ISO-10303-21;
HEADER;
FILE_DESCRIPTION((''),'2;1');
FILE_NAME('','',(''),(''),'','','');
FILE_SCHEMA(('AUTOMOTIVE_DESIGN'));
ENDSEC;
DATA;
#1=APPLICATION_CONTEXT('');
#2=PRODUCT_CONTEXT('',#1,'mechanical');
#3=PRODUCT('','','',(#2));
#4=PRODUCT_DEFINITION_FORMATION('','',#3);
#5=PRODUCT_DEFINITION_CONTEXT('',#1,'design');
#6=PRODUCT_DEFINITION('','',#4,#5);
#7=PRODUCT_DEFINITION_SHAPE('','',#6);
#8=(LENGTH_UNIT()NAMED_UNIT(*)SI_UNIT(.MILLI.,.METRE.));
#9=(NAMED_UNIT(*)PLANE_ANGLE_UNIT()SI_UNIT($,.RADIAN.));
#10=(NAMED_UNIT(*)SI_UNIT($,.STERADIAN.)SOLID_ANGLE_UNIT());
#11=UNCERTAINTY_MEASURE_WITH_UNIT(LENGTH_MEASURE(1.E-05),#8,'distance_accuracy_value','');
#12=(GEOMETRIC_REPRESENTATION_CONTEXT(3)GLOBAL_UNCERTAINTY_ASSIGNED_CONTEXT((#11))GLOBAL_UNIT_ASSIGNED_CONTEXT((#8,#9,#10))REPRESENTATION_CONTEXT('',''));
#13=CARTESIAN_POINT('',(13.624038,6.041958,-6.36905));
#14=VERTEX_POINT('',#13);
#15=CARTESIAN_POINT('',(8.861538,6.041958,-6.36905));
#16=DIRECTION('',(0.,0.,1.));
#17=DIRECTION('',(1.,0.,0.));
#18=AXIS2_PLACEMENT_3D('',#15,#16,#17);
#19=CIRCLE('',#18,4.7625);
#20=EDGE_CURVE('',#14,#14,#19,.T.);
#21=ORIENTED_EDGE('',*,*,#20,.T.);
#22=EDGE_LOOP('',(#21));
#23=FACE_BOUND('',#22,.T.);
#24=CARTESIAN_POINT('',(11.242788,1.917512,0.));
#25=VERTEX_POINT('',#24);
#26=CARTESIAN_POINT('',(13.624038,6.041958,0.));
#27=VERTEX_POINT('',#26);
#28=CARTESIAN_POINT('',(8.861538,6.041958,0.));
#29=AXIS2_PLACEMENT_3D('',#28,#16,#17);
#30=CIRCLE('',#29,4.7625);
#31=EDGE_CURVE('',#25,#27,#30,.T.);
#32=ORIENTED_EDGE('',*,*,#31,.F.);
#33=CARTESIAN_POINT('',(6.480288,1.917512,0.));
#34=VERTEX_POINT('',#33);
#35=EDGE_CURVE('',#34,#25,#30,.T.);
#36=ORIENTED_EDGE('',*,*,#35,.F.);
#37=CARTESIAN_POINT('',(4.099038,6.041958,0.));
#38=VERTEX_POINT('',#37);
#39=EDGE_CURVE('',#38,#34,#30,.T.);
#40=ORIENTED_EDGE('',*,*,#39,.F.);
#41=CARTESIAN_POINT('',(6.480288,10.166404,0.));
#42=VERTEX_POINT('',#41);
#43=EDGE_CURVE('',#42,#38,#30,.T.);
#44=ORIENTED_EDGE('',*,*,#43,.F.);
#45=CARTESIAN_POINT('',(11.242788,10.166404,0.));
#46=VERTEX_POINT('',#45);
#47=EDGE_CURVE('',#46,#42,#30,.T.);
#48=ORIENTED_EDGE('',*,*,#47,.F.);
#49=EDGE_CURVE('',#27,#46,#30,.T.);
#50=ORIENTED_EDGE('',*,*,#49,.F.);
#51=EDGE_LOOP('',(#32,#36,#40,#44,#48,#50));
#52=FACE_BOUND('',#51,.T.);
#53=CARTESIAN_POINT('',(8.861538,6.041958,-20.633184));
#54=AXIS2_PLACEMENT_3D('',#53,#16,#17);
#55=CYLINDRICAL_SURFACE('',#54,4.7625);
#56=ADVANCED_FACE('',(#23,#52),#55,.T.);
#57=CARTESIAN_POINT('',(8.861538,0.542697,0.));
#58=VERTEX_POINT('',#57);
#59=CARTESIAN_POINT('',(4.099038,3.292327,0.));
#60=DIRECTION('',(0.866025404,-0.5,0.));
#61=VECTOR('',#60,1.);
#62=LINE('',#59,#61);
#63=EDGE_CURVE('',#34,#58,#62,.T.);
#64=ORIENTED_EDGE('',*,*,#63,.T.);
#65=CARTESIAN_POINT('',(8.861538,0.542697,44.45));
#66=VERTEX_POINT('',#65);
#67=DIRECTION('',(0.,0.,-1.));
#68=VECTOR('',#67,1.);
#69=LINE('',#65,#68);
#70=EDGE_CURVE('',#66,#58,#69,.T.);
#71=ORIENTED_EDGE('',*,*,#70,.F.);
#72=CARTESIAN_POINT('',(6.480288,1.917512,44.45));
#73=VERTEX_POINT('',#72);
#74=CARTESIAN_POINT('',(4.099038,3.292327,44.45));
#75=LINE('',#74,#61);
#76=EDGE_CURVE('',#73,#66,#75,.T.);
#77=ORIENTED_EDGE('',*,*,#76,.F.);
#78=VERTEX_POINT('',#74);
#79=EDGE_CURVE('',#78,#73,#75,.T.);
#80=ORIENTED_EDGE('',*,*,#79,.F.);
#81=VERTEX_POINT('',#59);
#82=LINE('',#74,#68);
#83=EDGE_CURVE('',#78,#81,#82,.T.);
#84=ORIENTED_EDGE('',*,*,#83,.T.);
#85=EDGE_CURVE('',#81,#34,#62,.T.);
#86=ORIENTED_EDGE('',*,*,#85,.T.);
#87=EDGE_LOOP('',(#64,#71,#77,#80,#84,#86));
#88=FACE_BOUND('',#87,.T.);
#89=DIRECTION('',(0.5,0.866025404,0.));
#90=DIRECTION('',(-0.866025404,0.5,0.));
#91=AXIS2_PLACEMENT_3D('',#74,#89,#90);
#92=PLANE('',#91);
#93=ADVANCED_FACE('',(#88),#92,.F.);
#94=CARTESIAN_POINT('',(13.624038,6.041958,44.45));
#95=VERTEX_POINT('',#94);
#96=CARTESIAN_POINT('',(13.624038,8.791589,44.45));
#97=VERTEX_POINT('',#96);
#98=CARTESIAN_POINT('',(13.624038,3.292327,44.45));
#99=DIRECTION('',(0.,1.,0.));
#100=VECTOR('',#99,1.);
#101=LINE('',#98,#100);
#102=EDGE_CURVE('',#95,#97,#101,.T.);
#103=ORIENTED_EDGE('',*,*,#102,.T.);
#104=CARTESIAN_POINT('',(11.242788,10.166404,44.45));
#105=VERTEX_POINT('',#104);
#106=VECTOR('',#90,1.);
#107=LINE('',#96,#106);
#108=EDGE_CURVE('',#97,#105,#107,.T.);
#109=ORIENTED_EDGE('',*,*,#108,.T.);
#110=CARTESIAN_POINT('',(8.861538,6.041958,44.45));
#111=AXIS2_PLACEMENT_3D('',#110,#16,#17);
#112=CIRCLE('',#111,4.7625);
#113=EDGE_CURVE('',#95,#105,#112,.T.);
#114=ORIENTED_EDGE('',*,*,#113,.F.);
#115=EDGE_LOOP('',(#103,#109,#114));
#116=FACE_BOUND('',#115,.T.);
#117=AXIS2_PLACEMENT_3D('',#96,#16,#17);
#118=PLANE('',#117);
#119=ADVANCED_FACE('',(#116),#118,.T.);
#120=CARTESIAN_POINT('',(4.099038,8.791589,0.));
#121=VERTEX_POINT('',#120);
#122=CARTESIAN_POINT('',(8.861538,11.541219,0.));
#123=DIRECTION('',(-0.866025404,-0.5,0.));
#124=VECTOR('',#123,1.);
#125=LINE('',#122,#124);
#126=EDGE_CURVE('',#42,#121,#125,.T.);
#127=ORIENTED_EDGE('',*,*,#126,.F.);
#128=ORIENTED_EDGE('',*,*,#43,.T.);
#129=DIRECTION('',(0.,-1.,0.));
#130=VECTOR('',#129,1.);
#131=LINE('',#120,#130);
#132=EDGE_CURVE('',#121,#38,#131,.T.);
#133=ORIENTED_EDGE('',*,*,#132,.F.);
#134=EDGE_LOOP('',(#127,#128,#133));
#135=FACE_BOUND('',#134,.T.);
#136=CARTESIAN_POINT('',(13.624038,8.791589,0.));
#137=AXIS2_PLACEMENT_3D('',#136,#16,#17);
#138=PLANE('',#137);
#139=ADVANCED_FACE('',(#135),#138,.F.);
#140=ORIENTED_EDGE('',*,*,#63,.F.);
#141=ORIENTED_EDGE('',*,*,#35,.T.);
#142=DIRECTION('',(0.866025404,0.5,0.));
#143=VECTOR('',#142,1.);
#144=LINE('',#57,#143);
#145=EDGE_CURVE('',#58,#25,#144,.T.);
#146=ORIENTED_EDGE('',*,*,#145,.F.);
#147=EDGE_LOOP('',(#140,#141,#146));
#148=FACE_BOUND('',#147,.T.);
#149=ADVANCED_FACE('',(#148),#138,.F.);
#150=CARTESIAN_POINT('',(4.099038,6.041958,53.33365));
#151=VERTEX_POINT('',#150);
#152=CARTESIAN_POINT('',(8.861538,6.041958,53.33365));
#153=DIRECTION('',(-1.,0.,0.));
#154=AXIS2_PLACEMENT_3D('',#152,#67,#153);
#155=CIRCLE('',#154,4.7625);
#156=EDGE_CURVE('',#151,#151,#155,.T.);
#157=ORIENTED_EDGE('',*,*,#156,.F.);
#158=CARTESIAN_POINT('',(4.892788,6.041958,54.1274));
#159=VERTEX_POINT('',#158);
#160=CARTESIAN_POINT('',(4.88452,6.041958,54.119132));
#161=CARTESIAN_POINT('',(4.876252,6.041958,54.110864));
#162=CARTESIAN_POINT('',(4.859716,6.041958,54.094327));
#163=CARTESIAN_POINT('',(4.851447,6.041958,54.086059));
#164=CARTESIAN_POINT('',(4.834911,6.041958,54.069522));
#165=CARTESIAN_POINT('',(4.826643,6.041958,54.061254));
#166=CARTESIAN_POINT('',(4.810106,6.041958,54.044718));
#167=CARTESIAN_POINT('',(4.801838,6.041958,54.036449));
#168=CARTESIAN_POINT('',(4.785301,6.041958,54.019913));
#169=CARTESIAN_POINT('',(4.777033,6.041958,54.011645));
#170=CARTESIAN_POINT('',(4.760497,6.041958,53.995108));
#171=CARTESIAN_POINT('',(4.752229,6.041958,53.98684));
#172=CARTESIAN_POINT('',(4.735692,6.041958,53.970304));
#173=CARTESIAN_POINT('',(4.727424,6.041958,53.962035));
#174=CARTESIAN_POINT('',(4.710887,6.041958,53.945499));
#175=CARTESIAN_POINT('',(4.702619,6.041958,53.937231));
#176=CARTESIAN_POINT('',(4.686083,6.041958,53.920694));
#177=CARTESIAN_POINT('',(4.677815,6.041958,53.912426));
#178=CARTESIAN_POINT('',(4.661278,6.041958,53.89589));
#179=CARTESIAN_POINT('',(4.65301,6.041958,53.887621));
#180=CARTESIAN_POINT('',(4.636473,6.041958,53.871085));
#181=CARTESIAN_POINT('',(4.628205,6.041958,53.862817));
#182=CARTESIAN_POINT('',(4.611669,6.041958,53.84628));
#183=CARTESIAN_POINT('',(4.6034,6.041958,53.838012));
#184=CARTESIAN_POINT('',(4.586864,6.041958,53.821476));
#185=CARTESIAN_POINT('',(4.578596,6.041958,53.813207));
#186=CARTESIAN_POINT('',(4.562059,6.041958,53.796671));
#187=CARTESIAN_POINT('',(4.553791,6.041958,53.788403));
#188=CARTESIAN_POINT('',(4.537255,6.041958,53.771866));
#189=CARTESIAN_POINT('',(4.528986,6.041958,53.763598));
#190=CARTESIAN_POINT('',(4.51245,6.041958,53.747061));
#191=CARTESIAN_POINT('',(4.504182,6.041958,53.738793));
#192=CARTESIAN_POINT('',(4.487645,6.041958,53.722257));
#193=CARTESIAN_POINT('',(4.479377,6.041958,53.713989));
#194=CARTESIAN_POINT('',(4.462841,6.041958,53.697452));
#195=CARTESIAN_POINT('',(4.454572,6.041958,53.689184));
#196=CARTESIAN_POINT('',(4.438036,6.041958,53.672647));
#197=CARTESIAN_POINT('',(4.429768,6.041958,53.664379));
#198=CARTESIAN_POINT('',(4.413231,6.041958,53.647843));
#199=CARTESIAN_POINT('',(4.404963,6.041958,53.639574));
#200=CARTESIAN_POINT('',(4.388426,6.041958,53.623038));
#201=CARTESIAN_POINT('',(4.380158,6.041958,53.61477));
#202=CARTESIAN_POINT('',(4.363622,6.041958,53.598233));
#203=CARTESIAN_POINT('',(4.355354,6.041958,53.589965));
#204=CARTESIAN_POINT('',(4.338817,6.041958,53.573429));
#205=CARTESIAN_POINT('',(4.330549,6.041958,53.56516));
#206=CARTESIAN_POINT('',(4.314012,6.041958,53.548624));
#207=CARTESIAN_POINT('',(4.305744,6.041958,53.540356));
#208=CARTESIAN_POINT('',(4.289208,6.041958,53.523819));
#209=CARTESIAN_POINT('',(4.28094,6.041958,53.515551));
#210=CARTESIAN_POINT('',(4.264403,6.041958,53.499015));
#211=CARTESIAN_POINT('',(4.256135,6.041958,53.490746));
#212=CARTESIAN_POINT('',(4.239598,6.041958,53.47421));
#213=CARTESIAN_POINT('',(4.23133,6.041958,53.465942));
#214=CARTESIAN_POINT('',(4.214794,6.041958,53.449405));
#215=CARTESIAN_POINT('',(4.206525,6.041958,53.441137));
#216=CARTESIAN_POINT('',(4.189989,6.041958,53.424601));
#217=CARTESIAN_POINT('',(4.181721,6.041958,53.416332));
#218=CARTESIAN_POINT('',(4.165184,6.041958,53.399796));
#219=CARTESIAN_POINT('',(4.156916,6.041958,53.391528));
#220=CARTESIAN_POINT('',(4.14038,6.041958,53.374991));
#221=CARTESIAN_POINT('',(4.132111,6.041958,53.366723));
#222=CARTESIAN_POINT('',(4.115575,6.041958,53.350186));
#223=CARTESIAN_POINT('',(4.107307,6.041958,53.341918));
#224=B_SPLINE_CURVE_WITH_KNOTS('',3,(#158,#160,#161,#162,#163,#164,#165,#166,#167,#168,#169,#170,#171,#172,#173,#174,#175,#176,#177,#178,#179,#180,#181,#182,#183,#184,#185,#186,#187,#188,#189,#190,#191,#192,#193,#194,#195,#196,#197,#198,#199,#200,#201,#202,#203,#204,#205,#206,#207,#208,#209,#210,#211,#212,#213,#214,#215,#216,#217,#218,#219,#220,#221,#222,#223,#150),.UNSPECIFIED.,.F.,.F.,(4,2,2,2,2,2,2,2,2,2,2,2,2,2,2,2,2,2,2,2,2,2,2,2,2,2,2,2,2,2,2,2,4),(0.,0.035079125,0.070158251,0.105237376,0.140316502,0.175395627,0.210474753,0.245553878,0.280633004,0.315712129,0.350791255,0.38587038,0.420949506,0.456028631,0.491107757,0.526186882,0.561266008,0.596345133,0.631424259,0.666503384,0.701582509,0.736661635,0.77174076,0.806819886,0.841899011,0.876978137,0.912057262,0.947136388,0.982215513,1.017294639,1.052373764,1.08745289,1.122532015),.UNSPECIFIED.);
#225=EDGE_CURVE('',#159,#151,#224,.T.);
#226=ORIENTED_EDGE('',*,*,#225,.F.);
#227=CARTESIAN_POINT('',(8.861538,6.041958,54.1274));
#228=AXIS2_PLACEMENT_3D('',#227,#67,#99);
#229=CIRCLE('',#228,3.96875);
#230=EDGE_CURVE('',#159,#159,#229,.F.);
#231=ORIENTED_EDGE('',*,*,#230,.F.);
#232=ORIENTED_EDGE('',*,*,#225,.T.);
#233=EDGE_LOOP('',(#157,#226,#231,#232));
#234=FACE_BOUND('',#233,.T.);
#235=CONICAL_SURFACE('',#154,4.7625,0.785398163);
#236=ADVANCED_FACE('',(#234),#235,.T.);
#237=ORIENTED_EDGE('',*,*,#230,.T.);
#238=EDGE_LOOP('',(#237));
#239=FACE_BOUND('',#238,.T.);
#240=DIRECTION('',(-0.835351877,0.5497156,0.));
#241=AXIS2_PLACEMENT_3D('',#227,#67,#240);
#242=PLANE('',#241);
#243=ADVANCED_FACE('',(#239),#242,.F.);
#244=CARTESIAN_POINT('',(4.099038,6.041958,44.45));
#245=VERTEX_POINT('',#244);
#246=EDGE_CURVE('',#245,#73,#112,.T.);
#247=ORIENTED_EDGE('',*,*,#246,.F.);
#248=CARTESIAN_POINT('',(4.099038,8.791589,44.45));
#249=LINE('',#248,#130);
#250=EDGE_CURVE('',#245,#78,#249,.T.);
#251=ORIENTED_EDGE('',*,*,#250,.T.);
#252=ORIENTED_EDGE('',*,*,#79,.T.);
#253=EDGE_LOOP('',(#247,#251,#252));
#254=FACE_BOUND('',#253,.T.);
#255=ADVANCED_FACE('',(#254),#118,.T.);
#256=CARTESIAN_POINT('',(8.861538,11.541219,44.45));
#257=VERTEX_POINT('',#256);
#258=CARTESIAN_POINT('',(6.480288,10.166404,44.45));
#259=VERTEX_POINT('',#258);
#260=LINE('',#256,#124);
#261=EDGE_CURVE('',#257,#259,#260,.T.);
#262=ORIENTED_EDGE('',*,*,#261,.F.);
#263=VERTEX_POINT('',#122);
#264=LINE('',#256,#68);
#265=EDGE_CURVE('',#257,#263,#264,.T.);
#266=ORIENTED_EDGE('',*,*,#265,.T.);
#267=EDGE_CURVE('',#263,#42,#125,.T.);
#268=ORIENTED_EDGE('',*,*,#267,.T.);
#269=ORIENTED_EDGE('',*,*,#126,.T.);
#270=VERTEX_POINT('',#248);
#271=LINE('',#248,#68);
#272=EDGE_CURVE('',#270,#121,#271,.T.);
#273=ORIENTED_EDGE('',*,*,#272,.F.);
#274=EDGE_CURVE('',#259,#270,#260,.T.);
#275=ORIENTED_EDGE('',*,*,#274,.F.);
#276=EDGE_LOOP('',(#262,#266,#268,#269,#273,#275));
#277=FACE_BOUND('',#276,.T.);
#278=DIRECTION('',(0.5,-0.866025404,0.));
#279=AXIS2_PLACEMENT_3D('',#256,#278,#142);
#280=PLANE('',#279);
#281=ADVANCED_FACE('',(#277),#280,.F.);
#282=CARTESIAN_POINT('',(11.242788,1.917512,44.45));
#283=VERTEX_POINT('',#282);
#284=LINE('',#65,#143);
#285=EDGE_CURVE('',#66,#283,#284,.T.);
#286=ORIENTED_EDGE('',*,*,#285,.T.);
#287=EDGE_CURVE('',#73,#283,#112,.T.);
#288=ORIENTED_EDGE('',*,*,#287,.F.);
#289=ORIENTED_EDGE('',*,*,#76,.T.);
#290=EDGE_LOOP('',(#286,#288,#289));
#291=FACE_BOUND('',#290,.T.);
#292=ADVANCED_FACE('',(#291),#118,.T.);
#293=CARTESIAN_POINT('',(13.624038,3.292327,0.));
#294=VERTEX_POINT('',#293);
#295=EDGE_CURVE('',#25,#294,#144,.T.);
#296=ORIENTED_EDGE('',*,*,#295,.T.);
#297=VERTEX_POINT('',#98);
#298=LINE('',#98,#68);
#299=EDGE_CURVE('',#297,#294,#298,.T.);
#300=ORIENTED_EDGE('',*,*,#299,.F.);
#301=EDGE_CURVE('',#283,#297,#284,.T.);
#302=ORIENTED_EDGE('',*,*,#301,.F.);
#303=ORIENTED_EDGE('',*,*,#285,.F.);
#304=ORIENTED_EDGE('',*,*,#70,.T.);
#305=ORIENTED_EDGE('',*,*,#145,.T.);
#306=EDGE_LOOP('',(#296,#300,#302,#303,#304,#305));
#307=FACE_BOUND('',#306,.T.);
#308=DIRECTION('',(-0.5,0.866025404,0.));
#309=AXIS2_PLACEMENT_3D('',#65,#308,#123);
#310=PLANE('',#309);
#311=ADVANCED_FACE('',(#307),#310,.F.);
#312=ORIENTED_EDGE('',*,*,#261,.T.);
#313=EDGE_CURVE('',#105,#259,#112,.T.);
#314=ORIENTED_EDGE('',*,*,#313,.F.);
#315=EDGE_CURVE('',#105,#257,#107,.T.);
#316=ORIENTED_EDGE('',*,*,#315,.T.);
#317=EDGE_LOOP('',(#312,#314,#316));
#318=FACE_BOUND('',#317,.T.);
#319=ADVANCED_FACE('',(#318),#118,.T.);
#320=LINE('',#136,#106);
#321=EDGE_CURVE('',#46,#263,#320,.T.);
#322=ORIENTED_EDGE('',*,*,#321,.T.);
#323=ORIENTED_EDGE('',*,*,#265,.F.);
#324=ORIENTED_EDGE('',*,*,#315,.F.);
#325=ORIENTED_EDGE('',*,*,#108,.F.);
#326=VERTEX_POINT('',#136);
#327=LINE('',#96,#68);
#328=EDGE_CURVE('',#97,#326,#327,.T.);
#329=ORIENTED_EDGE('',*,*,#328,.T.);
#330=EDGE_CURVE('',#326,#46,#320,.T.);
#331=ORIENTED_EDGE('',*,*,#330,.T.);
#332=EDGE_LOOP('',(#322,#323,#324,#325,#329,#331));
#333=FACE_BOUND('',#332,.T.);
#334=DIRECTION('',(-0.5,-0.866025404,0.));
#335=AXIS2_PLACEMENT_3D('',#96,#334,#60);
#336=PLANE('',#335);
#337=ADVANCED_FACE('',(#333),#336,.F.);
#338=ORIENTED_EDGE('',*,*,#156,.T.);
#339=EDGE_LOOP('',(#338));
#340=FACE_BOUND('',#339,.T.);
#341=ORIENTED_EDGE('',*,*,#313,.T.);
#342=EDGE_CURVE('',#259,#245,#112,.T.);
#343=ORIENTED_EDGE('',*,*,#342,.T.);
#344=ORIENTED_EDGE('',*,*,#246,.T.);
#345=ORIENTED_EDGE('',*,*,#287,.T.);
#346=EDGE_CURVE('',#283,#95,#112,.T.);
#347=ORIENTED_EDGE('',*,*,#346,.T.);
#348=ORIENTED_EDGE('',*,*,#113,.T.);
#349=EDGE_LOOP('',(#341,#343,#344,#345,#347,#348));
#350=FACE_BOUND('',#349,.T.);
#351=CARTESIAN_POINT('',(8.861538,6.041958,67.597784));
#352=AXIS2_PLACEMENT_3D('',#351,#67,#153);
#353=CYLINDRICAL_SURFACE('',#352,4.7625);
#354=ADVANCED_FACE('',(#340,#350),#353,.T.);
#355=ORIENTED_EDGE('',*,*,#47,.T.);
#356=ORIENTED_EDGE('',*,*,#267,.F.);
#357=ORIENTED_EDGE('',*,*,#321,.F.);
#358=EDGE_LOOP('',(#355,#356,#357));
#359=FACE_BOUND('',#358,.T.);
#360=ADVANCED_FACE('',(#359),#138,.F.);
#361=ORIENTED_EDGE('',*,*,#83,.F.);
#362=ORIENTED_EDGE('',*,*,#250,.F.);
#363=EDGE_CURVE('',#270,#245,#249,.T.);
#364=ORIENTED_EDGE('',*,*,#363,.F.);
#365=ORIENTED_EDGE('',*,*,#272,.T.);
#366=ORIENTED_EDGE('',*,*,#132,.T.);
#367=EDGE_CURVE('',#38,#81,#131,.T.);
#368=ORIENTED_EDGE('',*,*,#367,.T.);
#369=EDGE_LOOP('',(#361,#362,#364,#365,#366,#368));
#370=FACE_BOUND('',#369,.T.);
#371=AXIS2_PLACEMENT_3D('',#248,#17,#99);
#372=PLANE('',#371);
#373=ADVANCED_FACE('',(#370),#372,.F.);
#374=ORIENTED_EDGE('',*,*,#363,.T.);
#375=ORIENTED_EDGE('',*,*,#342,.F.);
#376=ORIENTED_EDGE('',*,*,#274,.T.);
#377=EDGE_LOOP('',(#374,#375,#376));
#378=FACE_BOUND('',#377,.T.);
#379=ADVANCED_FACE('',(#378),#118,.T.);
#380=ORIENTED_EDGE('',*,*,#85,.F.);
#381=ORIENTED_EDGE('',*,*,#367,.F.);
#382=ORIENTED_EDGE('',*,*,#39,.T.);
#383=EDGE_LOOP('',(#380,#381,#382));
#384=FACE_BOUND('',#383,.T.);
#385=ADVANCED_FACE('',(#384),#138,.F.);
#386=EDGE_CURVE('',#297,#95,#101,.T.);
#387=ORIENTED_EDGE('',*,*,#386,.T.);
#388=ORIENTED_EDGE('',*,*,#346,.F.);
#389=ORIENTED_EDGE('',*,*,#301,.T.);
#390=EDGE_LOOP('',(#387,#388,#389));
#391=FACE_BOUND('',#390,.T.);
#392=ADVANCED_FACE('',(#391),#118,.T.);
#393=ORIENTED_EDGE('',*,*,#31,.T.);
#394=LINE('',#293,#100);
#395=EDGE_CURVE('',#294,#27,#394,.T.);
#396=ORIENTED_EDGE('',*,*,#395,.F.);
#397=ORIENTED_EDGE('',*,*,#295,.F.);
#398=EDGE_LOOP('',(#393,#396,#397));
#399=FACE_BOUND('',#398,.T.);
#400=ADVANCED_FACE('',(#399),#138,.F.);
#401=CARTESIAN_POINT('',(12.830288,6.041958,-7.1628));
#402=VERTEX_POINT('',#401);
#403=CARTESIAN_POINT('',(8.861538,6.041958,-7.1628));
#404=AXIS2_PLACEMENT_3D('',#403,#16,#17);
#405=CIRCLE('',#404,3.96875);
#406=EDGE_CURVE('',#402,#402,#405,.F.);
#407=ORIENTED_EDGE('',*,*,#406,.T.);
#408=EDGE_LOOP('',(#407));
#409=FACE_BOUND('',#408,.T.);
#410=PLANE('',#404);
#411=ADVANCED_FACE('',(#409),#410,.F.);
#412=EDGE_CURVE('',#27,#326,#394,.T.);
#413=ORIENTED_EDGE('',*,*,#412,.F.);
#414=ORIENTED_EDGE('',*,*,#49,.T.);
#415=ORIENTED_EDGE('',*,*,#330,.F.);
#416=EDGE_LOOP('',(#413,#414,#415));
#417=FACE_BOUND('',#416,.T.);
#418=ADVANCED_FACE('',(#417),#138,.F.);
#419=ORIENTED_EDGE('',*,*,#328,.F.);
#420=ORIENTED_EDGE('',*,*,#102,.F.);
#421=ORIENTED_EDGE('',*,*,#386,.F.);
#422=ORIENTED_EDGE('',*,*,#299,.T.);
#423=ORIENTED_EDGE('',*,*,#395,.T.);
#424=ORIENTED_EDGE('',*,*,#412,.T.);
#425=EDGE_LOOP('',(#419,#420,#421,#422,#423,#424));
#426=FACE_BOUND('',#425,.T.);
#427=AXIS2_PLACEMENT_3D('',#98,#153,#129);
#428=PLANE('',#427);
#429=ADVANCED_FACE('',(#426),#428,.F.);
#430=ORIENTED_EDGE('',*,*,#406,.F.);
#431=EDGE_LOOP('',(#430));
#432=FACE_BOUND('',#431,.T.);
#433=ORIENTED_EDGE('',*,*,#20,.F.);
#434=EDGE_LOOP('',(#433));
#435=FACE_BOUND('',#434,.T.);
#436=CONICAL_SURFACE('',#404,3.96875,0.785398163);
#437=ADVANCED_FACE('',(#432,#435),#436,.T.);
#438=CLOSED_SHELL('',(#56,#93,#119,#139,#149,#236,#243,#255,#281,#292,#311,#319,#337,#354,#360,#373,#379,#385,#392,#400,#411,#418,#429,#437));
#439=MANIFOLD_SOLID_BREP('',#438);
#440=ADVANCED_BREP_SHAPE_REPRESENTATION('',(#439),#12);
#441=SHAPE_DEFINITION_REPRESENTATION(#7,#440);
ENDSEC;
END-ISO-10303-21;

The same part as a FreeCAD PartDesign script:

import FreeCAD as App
import Part
import Sketcher
Q = App.Units.Quantity


def edges_at(feature, points):
    """Names of the edges that pass closest to the given points."""
    edges = feature.Shape.Edges
    near = lambda p: min(range(len(edges)), key=lambda i: edges[i].distToShape(Part.Vertex(*p))[0])
    return sorted({f"Edge{near(p) + 1}" for p in points})


def add_polygon(sketch, points):
    """Adds a closed chain of lines whose ends are joined by coincident constraints."""
    first, n = sketch.GeometryCount, len(points)
    for a, b in zip(points, points[1:] + points[:1]):
        sketch.addGeometry(Part.LineSegment(App.Vector(*a, 0), App.Vector(*b, 0)), False)
    for i in range(n):
        sketch.addConstraint(Sketcher.Constraint("Coincident", first + i, 2, first + (i + 1) % n, 1))

doc = App.newDocument("Part")
body = doc.addObject("PartDesign::Body", "Body")

# Sketch on XY plane
sketch1 = body.newObject("Sketcher::SketchObject", "Sketch")
sketch1.AttachmentSupport = (doc.getObject("XY_Plane"), [""])
sketch1.MapMode = "FlatFace"
sketch1.addGeometry(Part.Circle(App.Vector(8.9, 6, 0), App.Vector(0, 0, 1), 4.8), False)
sketch1.addConstraint(Sketcher.Constraint("Diameter", 0, Q("0.375 in")))
sketch1.addConstraint(Sketcher.Constraint("DistanceX", -1, 1, 0, 3, Q("8.861538 mm")))
sketch1.addConstraint(Sketcher.Constraint("DistanceY", -1, 1, 0, 3, Q("6.041958 mm")))
pad1 = body.newObject("PartDesign::Pad", "Pad")
pad1.Profile = sketch1
pad1.Length = Q("0.282 in")
pad1.Reversed = True

# Sketch on XY plane
sketch2 = body.newObject("Sketcher::SketchObject", "Sketch001")
sketch2.AttachmentSupport = (doc.getObject("XY_Plane"), [""])
sketch2.MapMode = "FlatFace"
add_polygon(sketch2, [(14, 9), (9, 12), (4, 9), (4, 3), (9, 1), (14, 3)])  # lines 0-5
sketch2.addConstraint(Sketcher.Constraint("Vertical", 2))
sketch2.addConstraint(Sketcher.Constraint("Vertical", 5))
sketch2.addConstraint(Sketcher.Constraint("Parallel", 0, 3))
sketch2.addConstraint(Sketcher.Constraint("Parallel", 1, 4))
sketch2.addConstraint(Sketcher.Constraint("Horizontal", 2, 2, 4, 2))
sketch2.addConstraint(Sketcher.Constraint("Horizontal", 1, 2, 5, 2))
sketch2.addConstraint(Sketcher.Constraint("Vertical", 0, 2, 3, 2))
sketch2.addConstraint(Sketcher.Constraint("Angle", 0, Q("150 deg")))
sketch2.addConstraint(Sketcher.Constraint("DistanceX", 1, 2, 0, 2, Q("0.1875 in")))
sketch2.addConstraint(Sketcher.Constraint("DistanceY", 2, 2, 2, 1, Q("5.499261 mm")))
sketch2.addConstraint(Sketcher.Constraint("DistanceX", -1, 1, 0, 2, Q("8.861538 mm")))
sketch2.addConstraint(Sketcher.Constraint("DistanceY", -1, 1, 0, 2, Q("11.541219 mm")))
pad2 = body.newObject("PartDesign::Pad", "Pad001")
pad2.Profile = sketch2
pad2.Length = Q("1.75 in")

# Sketch on XY plane
sketch3 = body.newObject("Sketcher::SketchObject", "Sketch002")
sketch3.AttachmentSupport = (doc.getObject("XY_Plane"), [""])
sketch3.MapMode = "FlatFace"
sketch3.AttachmentOffset = App.Placement(App.Vector(0, 0, 2.131 * 25.4), App.Rotation())
sketch3.addGeometry(Part.Circle(App.Vector(8.9, 6, 0), App.Vector(0, 0, 1), 4.8), False)
sketch3.addConstraint(Sketcher.Constraint("Diameter", 0, Q("0.375 in")))
sketch3.addConstraint(Sketcher.Constraint("DistanceX", -1, 1, 0, 3, Q("8.861538 mm")))
sketch3.addConstraint(Sketcher.Constraint("DistanceY", -1, 1, 0, 3, Q("6.041958 mm")))
pad3 = body.newObject("PartDesign::Pad", "Pad002")
pad3.Profile = sketch3
pad3.Length = Q("0.381 in")
pad3.Reversed = True
doc.recompute()

chamfer = body.newObject("PartDesign::Chamfer", "Chamfer")
chamfer.Base = (pad3, edges_at(pad3, [(4.099, 6.042, 54.127), (4.099, 6.042, -7.163)]))
chamfer.Size = Q("0.03125 in")

doc.recompute()
